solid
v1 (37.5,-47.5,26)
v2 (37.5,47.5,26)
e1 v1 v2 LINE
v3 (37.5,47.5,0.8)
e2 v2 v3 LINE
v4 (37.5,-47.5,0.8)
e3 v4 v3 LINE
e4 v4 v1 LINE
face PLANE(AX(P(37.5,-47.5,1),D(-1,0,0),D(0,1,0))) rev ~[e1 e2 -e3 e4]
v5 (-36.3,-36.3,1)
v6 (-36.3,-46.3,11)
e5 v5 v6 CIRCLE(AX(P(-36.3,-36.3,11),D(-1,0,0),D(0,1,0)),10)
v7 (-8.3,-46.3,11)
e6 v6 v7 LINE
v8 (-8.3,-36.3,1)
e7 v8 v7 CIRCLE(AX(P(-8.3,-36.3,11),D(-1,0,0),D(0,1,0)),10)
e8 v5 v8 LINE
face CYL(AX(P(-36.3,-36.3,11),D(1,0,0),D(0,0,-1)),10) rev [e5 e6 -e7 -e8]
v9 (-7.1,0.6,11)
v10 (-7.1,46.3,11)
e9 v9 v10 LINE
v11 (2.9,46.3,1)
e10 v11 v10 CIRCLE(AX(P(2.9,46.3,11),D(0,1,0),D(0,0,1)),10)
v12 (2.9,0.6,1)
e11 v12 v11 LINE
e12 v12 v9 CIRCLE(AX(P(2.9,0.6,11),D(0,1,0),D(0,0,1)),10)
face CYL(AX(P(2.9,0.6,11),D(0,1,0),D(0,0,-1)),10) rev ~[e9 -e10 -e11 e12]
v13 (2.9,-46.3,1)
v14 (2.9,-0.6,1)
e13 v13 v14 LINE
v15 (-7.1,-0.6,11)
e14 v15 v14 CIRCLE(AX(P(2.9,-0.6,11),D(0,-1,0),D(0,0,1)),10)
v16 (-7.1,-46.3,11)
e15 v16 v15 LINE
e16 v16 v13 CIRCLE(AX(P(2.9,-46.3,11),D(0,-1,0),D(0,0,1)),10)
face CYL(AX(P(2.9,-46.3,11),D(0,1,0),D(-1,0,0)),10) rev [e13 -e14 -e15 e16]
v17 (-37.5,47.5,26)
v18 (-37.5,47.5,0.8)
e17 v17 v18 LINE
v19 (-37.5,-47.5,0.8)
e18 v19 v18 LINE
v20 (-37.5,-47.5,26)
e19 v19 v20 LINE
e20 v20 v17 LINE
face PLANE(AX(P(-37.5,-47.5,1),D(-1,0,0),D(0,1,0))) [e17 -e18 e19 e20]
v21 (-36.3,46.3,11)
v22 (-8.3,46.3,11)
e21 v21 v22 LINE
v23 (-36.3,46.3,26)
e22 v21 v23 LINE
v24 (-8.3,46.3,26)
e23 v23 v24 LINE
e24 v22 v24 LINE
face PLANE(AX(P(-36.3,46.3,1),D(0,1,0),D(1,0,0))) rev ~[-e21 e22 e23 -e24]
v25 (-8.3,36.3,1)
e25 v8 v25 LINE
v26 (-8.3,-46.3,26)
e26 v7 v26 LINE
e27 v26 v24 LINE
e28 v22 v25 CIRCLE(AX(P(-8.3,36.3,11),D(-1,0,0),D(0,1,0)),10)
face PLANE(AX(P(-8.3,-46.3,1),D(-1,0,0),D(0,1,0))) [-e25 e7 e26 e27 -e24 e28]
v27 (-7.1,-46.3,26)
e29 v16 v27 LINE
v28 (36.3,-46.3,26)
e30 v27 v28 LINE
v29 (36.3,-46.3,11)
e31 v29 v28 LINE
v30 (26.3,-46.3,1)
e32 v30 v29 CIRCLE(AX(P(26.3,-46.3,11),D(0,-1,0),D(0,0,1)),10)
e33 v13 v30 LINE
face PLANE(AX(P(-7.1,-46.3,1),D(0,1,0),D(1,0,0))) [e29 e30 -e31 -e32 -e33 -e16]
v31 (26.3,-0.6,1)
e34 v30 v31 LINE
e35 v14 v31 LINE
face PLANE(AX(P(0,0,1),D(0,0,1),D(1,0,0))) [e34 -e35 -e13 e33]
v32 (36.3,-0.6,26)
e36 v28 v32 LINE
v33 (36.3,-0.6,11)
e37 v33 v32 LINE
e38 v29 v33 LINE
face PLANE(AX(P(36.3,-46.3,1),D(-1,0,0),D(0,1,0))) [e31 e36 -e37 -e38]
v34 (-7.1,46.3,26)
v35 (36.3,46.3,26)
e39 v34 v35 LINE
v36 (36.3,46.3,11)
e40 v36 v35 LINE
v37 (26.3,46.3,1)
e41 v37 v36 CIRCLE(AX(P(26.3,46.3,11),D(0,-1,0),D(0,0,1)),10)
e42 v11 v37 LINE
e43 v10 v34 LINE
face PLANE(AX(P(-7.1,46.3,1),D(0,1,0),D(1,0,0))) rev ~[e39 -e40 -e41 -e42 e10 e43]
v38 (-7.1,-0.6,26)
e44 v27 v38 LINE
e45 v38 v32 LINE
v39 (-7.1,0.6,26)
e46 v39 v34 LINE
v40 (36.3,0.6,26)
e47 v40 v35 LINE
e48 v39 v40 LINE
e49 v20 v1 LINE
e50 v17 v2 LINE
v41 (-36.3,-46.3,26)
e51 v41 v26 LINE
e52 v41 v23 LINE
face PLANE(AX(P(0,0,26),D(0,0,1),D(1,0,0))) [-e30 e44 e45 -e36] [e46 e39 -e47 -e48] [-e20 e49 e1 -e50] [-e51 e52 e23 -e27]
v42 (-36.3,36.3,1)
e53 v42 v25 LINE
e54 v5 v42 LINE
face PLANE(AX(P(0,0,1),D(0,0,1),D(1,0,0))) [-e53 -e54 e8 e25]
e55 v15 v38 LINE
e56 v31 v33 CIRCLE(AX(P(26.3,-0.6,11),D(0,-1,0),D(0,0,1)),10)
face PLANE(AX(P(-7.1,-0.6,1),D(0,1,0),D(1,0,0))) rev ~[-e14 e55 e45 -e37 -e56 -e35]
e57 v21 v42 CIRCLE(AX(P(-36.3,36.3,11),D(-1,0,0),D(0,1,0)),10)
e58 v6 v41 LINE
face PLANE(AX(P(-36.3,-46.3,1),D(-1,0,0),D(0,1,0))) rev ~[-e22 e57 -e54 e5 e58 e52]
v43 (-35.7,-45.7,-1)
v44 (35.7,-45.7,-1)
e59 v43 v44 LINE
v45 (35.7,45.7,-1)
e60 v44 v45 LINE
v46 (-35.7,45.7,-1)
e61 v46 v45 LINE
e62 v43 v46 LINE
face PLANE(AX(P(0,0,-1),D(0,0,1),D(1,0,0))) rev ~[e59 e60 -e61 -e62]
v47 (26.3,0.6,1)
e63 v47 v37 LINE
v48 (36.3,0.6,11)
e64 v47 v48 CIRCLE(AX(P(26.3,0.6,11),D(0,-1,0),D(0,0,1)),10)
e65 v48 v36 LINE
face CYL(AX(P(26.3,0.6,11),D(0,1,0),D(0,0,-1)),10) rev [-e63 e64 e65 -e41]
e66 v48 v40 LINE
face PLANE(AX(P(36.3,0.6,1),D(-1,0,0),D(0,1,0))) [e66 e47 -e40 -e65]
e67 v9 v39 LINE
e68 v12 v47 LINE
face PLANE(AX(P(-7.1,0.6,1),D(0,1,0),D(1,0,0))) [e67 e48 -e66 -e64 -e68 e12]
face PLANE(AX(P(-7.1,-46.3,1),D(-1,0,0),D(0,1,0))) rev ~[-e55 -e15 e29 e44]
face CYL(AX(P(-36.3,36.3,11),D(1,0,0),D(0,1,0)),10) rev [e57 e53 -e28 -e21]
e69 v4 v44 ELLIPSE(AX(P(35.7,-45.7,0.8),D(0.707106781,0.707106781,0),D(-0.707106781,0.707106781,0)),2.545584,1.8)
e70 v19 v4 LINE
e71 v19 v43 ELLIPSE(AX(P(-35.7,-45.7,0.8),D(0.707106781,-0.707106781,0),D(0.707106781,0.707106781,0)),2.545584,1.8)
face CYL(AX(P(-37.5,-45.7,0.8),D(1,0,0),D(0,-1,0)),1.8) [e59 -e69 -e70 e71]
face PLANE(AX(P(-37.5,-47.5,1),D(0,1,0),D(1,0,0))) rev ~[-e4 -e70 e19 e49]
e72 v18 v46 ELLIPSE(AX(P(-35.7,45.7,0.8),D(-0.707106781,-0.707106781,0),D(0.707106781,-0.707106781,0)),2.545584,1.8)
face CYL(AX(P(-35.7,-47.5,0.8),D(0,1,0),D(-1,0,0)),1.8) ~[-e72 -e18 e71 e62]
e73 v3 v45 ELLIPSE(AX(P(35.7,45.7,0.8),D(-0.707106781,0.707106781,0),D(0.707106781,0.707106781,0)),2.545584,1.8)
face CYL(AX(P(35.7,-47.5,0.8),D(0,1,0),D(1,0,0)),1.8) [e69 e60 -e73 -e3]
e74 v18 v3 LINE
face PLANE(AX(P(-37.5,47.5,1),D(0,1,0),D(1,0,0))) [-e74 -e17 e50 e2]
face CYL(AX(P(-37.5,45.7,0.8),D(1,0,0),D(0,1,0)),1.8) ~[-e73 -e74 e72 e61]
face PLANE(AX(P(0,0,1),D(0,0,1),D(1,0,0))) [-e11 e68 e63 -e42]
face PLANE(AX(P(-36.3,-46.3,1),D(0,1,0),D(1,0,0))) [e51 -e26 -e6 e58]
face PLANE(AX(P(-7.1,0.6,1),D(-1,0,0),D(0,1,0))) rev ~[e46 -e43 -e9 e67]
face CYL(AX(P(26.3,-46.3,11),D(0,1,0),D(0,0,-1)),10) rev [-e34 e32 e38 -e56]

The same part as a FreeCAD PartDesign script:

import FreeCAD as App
import Part
import Sketcher

V = App.Vector


def edges_at(feature, points):
    """Names of the edges that pass closest to the given points."""
    edges = feature.Shape.Edges
    near = lambda p: min(range(len(edges)), key=lambda i: edges[i].distToShape(Part.Vertex(*p))[0])
    return sorted({f"Edge{near(p) + 1}" for p in points})

doc = App.newDocument("Part")
params = doc.addObject("Spreadsheet::Sheet", "Params")
for row, (alias, value) in enumerate([
    ("sketch1_width", "75 mm"),
    ("sketch1_height", "95 mm"),
    ("pad1_length", "2 mm"),
    ("sketch2_width", "75 mm"),
    ("sketch2_width2", "28 mm"),
    ("sketch2_height", "95 mm"),
    ("sketch2_width3", "43.4 mm"),
    ("sketch2_height2", "45.7 mm"),
    ("pad2_length", "25 mm"),
    ("fillet_radius", "10 mm"),
    ("fillet2_radius", "1.8 mm"),
], start=1):
    params.set(f"A{row}", alias)
    params.set(f"B{row}", "=" + value)
    params.setAlias(f"B{row}", alias)

body = doc.addObject("PartDesign::Body", "Body")

# Sketch on XZ plane
sketch1 = doc.addObject("Sketcher::SketchObject", "Sketch")
body.addObject(sketch1)
sketch1.AttachmentSupport = (doc.XZ_Plane, [""])
sketch1.MapMode = "FlatFace"
sketch1.addGeometry([
    Part.LineSegment(V(-38, 48, 0), V(-38, -48, 0)),
    Part.LineSegment(V(-38, -48, 0), V(38, -48, 0)),
    Part.LineSegment(V(38, -48, 0), V(38, 48, 0)),
    Part.LineSegment(V(38, 48, 0), V(-38, 48, 0)),
], False)
sketch1.addConstraint([
    Sketcher.Constraint("Coincident", 0, 2, 1, 1),
    Sketcher.Constraint("Coincident", 1, 2, 2, 1),
    Sketcher.Constraint("Coincident", 2, 2, 3, 1),
    Sketcher.Constraint("Coincident", 3, 2, 0, 1),
    Sketcher.Constraint("Vertical", 0),
    Sketcher.Constraint("Horizontal", 1),
    Sketcher.Constraint("Vertical", 2),
    Sketcher.Constraint("Horizontal", 3),
    Sketcher.Constraint("Symmetric", 0, 2, 2, 2, -1, 1),
    Sketcher.Constraint("DistanceX", 1, 1, 1, 2, 75.0),
    Sketcher.Constraint("DistanceY", 0, 2, 0, 1, 95.0),
])
sketch1.setExpression("Constraints[9]", "Params.sketch1_width")
sketch1.setExpression("Constraints[10]", "Params.sketch1_height")
pad1 = doc.addObject("PartDesign::Pad", "Pad")
body.addObject(pad1)
pad1.Profile = sketch1
pad1.setExpression("Length", "Params.pad1_length")
pad1.Midplane = True

# Sketch on XZ plane
sketch2 = doc.addObject("Sketcher::SketchObject", "Sketch001")
body.addObject(sketch2)
sketch2.AttachmentSupport = (doc.XZ_Plane, [""])
sketch2.MapMode = "FlatFace"
sketch2.AttachmentOffset = App.Placement(V(0, 0, 1), App.Rotation())
sketch2.addGeometry([
    Part.LineSegment(V(-38, 48, 0), V(-38, -48, 0)),  # 0
    Part.LineSegment(V(-38, -48, 0), V(38, -48, 0)),  # 1
    Part.LineSegment(V(38, -48, 0), V(38, 48, 0)),  # 2
    Part.LineSegment(V(38, 48, 0), V(-38, 48, 0)),  # 3
    Part.LineSegment(V(36, -46, 0), V(-7, -46, 0)),  # 4
    Part.LineSegment(V(-7, -46, 0), V(-7, -1, 0)),  # 5
    Part.LineSegment(V(-7, -1, 0), V(36, -1, 0)),  # 6
    Part.LineSegment(V(36, -1, 0), V(36, -46, 0)),  # 7
    Part.LineSegment(V(-8, -46, 0), V(-36, -46, 0)),  # 8
    Part.LineSegment(V(-36, -46, 0), V(-36, 46, 0)),  # 9
    Part.LineSegment(V(-36, 46, 0), V(-8, 46, 0)),  # 10
    Part.LineSegment(V(-8, 46, 0), V(-8, -46, 0)),  # 11
    Part.LineSegment(V(36, 1, 0), V(-7, 1, 0)),  # 12
    Part.LineSegment(V(-7, 1, 0), V(-7, 46, 0)),  # 13
    Part.LineSegment(V(-7, 46, 0), V(36, 46, 0)),  # 14
    Part.LineSegment(V(36, 46, 0), V(36, 1, 0)),  # 15
], False)
sketch2.addConstraint([
    Sketcher.Constraint("Coincident", 0, 2, 1, 1),
    Sketcher.Constraint("Coincident", 1, 2, 2, 1),
    Sketcher.Constraint("Coincident", 2, 2, 3, 1),
    Sketcher.Constraint("Coincident", 3, 2, 0, 1),
    Sketcher.Constraint("Coincident", 4, 2, 5, 1),
    Sketcher.Constraint("Coincident", 5, 2, 6, 1),
    Sketcher.Constraint("Coincident", 6, 2, 7, 1),
    Sketcher.Constraint("Coincident", 7, 2, 4, 1),
    Sketcher.Constraint("Coincident", 8, 2, 9, 1),
    Sketcher.Constraint("Coincident", 9, 2, 10, 1),
    Sketcher.Constraint("Coincident", 10, 2, 11, 1),
    Sketcher.Constraint("Coincident", 11, 2, 8, 1),
    Sketcher.Constraint("Coincident", 12, 2, 13, 1),
    Sketcher.Constraint("Coincident", 13, 2, 14, 1),
    Sketcher.Constraint("Coincident", 14, 2, 15, 1),
    Sketcher.Constraint("Coincident", 15, 2, 12, 1),
    Sketcher.Constraint("Vertical", 0),
    Sketcher.Constraint("Horizontal", 1),
    Sketcher.Constraint("Vertical", 2),
    Sketcher.Constraint("Horizontal", 3),
    Sketcher.Constraint("Horizontal", 4),
    Sketcher.Constraint("Vertical", 5),
    Sketcher.Constraint("Horizontal", 6),
    Sketcher.Constraint("Vertical", 7),
    Sketcher.Constraint("Horizontal", 8),
    Sketcher.Constraint("Vertical", 9),
    Sketcher.Constraint("Horizontal", 10),
    Sketcher.Constraint("Vertical", 11),
    Sketcher.Constraint("Horizontal", 12),
    Sketcher.Constraint("Vertical", 13),
    Sketcher.Constraint("Horizontal", 14),
    Sketcher.Constraint("Vertical", 15),
    Sketcher.Constraint("Symmetric", 0, 2, 2, 2, -1, 1),
    Sketcher.Constraint("Symmetric", 7, 2, 9, 2, -1, 1),
    Sketcher.Constraint("Symmetric", 8, 2, 14, 2, -1, 1),
    Sketcher.Constraint("Symmetric", 5, 2, 12, 2, -1),
    Sketcher.Constraint("Horizontal", 7, 2, 8, 2),
    Sketcher.Constraint("DistanceX", 1, 1, 1, 2, 75.0),
    Sketcher.Constraint("DistanceX", 8, 2, 8, 1, 28.0),
    Sketcher.Constraint("DistanceY", 0, 2, 0, 1, 95.0),
    Sketcher.Constraint("DistanceX", 4, 2, 4, 1, 43.4),
    Sketcher.Constraint("DistanceY", 5, 1, 5, 2, 45.7),
    Sketcher.Constraint("DistanceY", 9, 1, 9, 2, 92.6),
    Sketcher.Constraint("DistanceX", 4, 2, -1, 1, 7.1),
])
sketch2.setExpression("Constraints[37]", "Params.sketch2_width")
sketch2.setExpression("Constraints[38]", "Params.sketch2_width2")
sketch2.setExpression("Constraints[39]", "Params.sketch2_height")
sketch2.setExpression("Constraints[40]", "Params.sketch2_width3")
sketch2.setExpression("Constraints[41]", "Params.sketch2_height2")
pad2 = doc.addObject("PartDesign::Pad", "Pad001")
body.addObject(pad2)
pad2.Profile = sketch2
pad2.setExpression("Length", "Params.pad2_length")
doc.recompute()

fillet = doc.addObject("PartDesign::Fillet", "Fillet")
body.addObject(fillet)
fillet.Base = (pad2, edges_at(pad2, [
    (36.3, -1, 23.45),
    (36.3, -1, -23.45),
    (-22.3, -1, 46.3),
    (-7.1, -1, 23.45),
    (-7.1, -1, -23.45),
    (-22.3, -1, -46.3),
]))
fillet.setExpression("Radius", "Params.fillet_radius")
doc.recompute()

fillet2 = doc.addObject("PartDesign::Fillet", "Fillet001")
body.addObject(fillet2)
fillet2.Base = (fillet, edges_at(fillet, [
    (0, 1, 47.5),
    (37.5, 1, 0),
    (0, 1, -47.5),
    (-37.5, 1, 0),
]))
fillet2.setExpression("Radius", "Params.fillet2_radius")
body2 = doc.addObject("PartDesign::Body", "Body001")
doc.recompute()

body.Placement = App.Placement(V(0, 0, 0), App.Rotation(V(-1, 0, 0), 90))
boolean = doc.addObject("PartDesign::Boolean", "Boolean")
body2.addObject(boolean)
boolean.Type = "Fuse"
boolean.addObjects([body])

doc.recompute()
